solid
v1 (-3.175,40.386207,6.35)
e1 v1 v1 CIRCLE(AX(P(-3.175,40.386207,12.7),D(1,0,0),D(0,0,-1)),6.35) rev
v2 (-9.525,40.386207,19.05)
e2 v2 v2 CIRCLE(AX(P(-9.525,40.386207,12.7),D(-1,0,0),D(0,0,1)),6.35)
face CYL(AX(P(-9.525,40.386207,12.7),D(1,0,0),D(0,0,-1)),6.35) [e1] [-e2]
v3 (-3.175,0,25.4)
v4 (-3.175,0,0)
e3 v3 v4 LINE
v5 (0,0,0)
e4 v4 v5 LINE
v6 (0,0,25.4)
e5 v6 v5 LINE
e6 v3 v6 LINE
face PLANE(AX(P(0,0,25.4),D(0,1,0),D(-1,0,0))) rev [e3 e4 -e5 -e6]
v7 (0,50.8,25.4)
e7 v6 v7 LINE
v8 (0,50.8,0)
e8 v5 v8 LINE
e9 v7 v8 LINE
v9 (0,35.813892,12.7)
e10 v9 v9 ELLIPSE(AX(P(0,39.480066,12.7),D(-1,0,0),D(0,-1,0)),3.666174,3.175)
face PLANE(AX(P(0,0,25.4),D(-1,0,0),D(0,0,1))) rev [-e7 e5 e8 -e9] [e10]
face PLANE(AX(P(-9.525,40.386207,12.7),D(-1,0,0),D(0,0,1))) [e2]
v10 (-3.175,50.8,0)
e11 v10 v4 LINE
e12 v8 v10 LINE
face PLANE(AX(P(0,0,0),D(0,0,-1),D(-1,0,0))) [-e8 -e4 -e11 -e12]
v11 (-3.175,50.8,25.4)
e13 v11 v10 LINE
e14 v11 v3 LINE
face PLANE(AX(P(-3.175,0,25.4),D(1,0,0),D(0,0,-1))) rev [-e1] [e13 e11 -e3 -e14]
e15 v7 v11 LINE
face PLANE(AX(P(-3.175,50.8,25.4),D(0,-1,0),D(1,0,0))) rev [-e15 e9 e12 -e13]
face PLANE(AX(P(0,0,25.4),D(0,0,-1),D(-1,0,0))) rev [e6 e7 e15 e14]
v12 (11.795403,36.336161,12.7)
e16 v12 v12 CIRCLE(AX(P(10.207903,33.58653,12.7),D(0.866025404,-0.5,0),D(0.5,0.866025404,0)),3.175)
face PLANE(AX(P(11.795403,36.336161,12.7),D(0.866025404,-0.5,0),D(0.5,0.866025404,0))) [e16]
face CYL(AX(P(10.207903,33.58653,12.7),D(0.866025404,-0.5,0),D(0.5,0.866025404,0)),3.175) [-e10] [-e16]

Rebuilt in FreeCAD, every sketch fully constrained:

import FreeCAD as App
import Part
import Sketcher
from FreeCAD import Vector
Q = App.Units.Quantity


def add_polygon(sketch, points):
    """Adds a closed chain of lines whose ends are joined by coincident constraints."""
    first, n = sketch.GeometryCount, len(points)
    for a, b in zip(points, points[1:] + points[:1]):
        sketch.addGeometry(Part.LineSegment(App.Vector(*a, 0), App.Vector(*b, 0)), False)
    for i in range(n):
        sketch.addConstraint(Sketcher.Constraint("Coincident", first + i, 2, first + (i + 1) % n, 1))

doc = App.newDocument("Part")
body = doc.addObject("PartDesign::Body", "Body")

sketch1 = body.newObject("Sketcher::SketchObject", "Sketch")
sketch1.AttachmentSupport = (doc.getObject("XY_Plane"), [""])
sketch1.MapMode = "FlatFace"
add_polygon(sketch1, [(-3.2, 50.8), (-3.2, 0), (0, 0), (0, 50.8)])
sketch1.addConstraint([
    Sketcher.Constraint("Vertical", 0),
    Sketcher.Constraint("Horizontal", 1),
    Sketcher.Constraint("Vertical", 2),
    Sketcher.Constraint("Horizontal", 3),
    Sketcher.Constraint("Coincident", 1, 2, -1, 1),
    Sketcher.Constraint("DistanceY", 0, 2, 0, 1, Q("2 in")),
    Sketcher.Constraint("DistanceX", 1, 1, 1, 2, Q("0.125 in")),
])
pad1 = body.newObject("PartDesign::Pad", "Pad")
pad1.Profile = sketch1
pad1.Length = Q("1 in")

sketch2 = body.newObject("Sketcher::SketchObject", "Sketch001")
sketch2.AttachmentSupport = (doc.getObject("YZ_Plane"), [""])
sketch2.MapMode = "FlatFace"
sketch2.AttachmentOffset = App.Placement(Vector(0, 0, -0.125 * 25.4), App.Rotation())
sketch2.addGeometry(Part.Circle(Vector(40, 13, 0), Vector(0, 0, 1), 6), False)
sketch2.addConstraint([
    Sketcher.Constraint("Diameter", 0, Q("0.5 in")),
    Sketcher.Constraint("DistanceY", -1, 1, 0, 3, Q("0.5 in")),
    Sketcher.Constraint("DistanceX", -1, 1, 0, 3, 40.386207),
])
pad2 = body.newObject("PartDesign::Pad", "Pad001")
pad2.Profile = sketch2
pad2.Length = Q("0.25 in")
pad2.Reversed = True

sketch3 = body.newObject("Sketcher::SketchObject", "Sketch002")
sketch3.AttachmentSupport = (doc.getObject("XY_Plane"), [""])
sketch3.MapMode = "FlatFace"
sketch3.AttachmentOffset = App.Placement(Vector(0, 0, 0.5 * 25.4), App.Rotation())
add_polygon(sketch3, [(11.8, 36.3), (0, 43.1), (0, 39.5), (10.2, 33.6)])
sketch3.addGeometry(Part.LineSegment(Vector(10.2, 33.6, 0), Vector(-1.6, 40.4, 0)), True)
sketch3.addConstraint([
    Sketcher.Constraint("Vertical", 1),
    Sketcher.Constraint("Coincident", 4, 1, 2, 2),
    Sketcher.Constraint("PointOnObject", 0, 2, -2),
    Sketcher.Constraint("Parallel", 0, 2),
    Sketcher.Constraint("Perpendicular", 2, 3),
    Sketcher.Constraint("Perpendicular", 3, 4),
    Sketcher.Constraint("Equal", 0, 4),
    Sketcher.Constraint("Angle", 0, Q("150 deg")),
    Sketcher.Constraint("Distance", 3, Q("0.125 in")),
    Sketcher.Constraint("Distance", 0, 13.620158),
    Sketcher.Constraint("DistanceY", -1, 1, 0, 2, 43.14624),
])
revolution = body.newObject("PartDesign::Revolution", "Revolution")
revolution.Profile = sketch3
revolution.ReferenceAxis = (sketch3, ["Axis0"])
revolution.Angle = 360

doc.recompute()
